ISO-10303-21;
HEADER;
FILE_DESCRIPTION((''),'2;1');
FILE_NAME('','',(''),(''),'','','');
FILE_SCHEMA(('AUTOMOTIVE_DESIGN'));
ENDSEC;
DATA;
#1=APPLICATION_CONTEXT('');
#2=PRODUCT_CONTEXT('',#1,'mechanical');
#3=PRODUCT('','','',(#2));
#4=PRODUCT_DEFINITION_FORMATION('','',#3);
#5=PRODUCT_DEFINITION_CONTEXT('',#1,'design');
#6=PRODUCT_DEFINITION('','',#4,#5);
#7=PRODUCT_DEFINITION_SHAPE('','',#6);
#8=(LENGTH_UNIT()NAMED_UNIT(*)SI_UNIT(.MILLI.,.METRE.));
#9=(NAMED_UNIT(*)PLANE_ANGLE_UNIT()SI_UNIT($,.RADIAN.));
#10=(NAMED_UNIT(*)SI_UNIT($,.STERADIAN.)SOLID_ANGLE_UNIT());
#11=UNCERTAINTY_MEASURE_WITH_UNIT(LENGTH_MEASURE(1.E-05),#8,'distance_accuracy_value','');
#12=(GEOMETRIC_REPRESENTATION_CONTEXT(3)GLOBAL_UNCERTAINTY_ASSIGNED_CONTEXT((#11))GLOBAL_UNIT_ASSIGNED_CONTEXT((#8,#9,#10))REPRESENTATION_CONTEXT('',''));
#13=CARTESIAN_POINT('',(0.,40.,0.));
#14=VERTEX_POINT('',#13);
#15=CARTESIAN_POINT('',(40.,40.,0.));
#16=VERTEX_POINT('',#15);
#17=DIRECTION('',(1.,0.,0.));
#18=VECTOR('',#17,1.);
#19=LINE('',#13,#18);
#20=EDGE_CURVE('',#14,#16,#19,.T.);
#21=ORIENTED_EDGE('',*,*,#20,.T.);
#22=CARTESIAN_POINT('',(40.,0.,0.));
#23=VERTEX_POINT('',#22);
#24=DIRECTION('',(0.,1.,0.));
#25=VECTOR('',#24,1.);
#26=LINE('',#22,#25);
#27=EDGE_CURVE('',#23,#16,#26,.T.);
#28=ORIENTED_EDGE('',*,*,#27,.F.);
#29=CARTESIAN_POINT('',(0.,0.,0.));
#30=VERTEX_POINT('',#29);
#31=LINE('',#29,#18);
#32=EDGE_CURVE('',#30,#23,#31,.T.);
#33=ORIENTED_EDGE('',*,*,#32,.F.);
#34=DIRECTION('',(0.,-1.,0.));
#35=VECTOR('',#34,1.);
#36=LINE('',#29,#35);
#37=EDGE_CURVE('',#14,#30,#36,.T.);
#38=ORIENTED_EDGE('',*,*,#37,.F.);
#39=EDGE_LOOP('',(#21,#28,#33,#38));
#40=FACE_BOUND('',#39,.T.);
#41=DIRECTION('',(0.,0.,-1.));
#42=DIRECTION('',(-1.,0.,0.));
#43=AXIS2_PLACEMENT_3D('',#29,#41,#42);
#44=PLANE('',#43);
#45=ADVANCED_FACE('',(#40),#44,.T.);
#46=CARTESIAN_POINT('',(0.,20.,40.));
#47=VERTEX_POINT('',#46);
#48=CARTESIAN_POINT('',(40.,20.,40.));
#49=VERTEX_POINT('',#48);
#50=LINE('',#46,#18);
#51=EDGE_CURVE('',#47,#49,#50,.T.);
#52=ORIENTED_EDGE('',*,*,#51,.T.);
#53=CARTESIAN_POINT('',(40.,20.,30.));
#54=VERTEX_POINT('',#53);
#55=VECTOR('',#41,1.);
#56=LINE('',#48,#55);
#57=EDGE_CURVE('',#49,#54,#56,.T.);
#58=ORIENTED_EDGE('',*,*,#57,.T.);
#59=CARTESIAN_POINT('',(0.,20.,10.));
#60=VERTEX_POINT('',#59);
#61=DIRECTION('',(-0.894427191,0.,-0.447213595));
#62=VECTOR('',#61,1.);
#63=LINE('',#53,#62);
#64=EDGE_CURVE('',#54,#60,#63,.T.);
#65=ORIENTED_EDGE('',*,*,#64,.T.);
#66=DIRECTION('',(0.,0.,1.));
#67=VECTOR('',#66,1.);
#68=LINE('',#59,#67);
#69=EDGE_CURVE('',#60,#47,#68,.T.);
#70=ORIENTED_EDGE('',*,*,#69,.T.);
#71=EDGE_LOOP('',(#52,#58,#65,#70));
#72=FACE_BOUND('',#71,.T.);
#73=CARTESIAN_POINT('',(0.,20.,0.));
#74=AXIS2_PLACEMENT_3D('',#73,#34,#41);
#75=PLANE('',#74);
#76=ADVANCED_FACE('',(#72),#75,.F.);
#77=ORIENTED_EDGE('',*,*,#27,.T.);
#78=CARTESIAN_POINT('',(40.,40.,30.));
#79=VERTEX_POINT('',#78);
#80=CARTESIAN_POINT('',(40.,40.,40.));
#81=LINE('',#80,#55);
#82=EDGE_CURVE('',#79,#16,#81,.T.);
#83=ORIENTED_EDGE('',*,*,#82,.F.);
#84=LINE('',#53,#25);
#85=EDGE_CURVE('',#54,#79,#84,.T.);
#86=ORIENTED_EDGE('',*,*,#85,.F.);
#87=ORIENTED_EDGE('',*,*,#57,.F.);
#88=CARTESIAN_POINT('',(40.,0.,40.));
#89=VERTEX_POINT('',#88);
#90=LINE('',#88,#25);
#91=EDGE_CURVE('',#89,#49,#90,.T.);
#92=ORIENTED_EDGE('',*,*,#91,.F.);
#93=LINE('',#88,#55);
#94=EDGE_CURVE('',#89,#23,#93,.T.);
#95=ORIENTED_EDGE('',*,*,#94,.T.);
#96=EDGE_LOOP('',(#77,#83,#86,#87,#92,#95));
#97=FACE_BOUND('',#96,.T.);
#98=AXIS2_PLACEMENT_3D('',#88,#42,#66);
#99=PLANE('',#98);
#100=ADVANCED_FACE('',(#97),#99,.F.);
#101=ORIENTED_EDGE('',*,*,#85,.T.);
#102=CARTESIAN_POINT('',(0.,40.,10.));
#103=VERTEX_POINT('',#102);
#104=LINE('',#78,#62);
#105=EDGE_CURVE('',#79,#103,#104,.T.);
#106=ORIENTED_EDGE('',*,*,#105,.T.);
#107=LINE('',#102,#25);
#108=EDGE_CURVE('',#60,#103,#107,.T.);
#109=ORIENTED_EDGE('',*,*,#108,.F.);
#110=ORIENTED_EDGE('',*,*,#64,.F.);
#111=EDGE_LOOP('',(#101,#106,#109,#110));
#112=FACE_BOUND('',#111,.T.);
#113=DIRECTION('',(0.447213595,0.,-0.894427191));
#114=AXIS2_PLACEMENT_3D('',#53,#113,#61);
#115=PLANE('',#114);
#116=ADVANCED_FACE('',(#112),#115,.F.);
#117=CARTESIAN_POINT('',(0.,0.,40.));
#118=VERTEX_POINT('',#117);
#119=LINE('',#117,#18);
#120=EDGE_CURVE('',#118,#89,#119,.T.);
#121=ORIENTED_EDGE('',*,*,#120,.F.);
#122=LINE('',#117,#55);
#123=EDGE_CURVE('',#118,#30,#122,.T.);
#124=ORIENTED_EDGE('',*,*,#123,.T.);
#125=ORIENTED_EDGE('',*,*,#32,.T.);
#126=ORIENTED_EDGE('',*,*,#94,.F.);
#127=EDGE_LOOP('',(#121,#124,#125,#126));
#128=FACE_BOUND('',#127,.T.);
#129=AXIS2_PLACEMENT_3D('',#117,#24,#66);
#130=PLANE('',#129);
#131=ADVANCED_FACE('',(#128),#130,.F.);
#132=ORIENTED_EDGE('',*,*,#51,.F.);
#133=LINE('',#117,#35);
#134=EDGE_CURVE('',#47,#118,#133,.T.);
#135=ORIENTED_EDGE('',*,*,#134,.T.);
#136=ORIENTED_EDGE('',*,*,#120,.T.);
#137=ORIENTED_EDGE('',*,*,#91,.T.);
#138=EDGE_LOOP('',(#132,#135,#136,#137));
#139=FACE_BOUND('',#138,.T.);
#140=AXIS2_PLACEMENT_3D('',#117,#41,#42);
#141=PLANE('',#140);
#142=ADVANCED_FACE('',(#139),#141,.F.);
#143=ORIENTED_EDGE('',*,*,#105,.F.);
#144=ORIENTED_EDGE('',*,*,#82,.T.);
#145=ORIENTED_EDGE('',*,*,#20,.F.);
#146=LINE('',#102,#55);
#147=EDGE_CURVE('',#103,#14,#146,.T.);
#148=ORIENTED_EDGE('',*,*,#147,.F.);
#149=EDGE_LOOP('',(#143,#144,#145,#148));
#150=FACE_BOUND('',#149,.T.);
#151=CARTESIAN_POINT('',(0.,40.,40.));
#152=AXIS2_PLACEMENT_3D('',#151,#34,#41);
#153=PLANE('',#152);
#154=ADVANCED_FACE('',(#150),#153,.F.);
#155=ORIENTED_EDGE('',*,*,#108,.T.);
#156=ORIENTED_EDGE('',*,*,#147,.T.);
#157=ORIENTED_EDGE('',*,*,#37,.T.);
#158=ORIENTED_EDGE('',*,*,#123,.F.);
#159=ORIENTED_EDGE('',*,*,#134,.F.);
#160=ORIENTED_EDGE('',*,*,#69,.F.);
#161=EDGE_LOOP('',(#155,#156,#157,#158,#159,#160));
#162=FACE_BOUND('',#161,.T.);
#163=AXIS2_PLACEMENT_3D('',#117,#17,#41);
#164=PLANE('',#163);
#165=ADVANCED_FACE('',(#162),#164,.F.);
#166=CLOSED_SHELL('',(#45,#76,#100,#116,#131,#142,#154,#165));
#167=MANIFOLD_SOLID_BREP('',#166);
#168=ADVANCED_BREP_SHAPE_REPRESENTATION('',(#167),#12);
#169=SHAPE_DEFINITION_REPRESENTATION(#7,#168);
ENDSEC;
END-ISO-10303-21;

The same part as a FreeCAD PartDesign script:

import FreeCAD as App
import Part
import Sketcher

V = App.Vector


def add_polygon(sketch, points):
    """Adds a closed chain of lines whose ends are joined by coincident constraints."""
    first, n = sketch.GeometryCount, len(points)
    for a, b in zip(points, points[1:] + points[:1]):
        sketch.addGeometry(Part.LineSegment(App.Vector(*a, 0), App.Vector(*b, 0)), False)
    for i in range(n):
        sketch.addConstraint(Sketcher.Constraint("Coincident", first + i, 2, first + (i + 1) % n, 1))

doc = App.newDocument("Part")
body = doc.addObject("PartDesign::Body", "Body")

# Sketch on XY plane
sketch1 = doc.addObject("Sketcher::SketchObject", "Sketch")
body.addObject(sketch1)
sketch1.AttachmentSupport = (doc.XY_Plane, [""])
sketch1.MapMode = "FlatFace"
add_polygon(sketch1, [(0, 40), (0, 0), (40, 0), (40, 40)])  # lines 0-3
sketch1.addConstraint([
    Sketcher.Constraint("Vertical", 0),
    Sketcher.Constraint("Horizontal", 1),
    Sketcher.Constraint("Vertical", 2),
    Sketcher.Constraint("Horizontal", 3),
    Sketcher.Constraint("Coincident", 0, 2, -1, 1),
    Sketcher.Constraint("Equal", 3, 0),
    Sketcher.Constraint("DistanceX", 1, 1, 1, 2, 40.0),
])
pad1 = doc.addObject("PartDesign::Pad", "Pad")
body.addObject(pad1)
pad1.Profile = sketch1
pad1.Length = 40

# Sketch on YZ plane
sketch2 = doc.addObject("Sketcher::SketchObject", "Sketch001")
body.addObject(sketch2)
sketch2.AttachmentSupport = (doc.YZ_Plane, [""])
sketch2.MapMode = "FlatFace"
add_polygon(sketch2, [(40, 0), (20, 0), (20, 10), (40, 10)])  # lines 0-3
sketch2.addConstraint([
    Sketcher.Constraint("Horizontal", 0),
    Sketcher.Constraint("Vertical", 1),
    Sketcher.Constraint("Horizontal", 2),
    Sketcher.Constraint("Vertical", 3),
    Sketcher.Constraint("PointOnObject", 0, 2, -1),
    Sketcher.Constraint("DistanceX", 0, 2, 0, 1, 20.0),
    Sketcher.Constraint("DistanceY", 1, 1, 1, 2, 10.0),
    Sketcher.Constraint("DistanceX", -1, 1, 0, 2, 20.0),
])
pocket1 = doc.addObject("PartDesign::Pocket", "Pocket")
body.addObject(pocket1)
pocket1.Profile = sketch2
pocket1.Length = 40
pocket1.Reversed = True

# Sketch on XZ plane
sketch3 = doc.addObject("Sketcher::SketchObject", "Sketch002")
body.addObject(sketch3)
sketch3.AttachmentSupport = (doc.XZ_Plane, [""])
sketch3.MapMode = "FlatFace"
sketch3.AttachmentOffset = App.Placement(V(0, 0, -40), App.Rotation())
add_polygon(sketch3, [(40, 30), (0, 10), (0, 40), (40, 40)])  # lines 0-3
sketch3.addConstraint([
    Sketcher.Constraint("Vertical", 1),
    Sketcher.Constraint("Horizontal", 2),
    Sketcher.Constraint("Vertical", 3),
    Sketcher.Constraint("PointOnObject", 0, 2, -2),
    Sketcher.Constraint("DistanceX", 2, 1, 2, 2, 40.0),
    Sketcher.Constraint("DistanceY", 1, 1, 1, 2, 30.0),
    Sketcher.Constraint("DistanceY", 3, 2, 3, 1, 10.0),
    Sketcher.Constraint("DistanceY", -1, 1, 0, 2, 10.0),
])
pocket2 = doc.addObject("PartDesign::Pocket", "Pocket001")
body.addObject(pocket2)
pocket2.Profile = sketch3
pocket2.Length = 20
pocket2.Reversed = True

# Sketch on XY plane
sketch4 = doc.addObject("Sketcher::SketchObject", "Sketch003")
body.addObject(sketch4)
sketch4.AttachmentSupport = (doc.XY_Plane, [""])
sketch4.MapMode = "FlatFace"
add_polygon(sketch4, [(40, 40), (40, 20), (0, 20), (0, 40)])  # lines 0-3
sketch4.addConstraint([
    Sketcher.Constraint("Vertical", 0),
    Sketcher.Constraint("Horizontal", 1),
    Sketcher.Constraint("Vertical", 2),
    Sketcher.Constraint("Horizontal", 3),
    Sketcher.Constraint("PointOnObject", 1, 2, -2),
    Sketcher.Constraint("DistanceX", 1, 2, 1, 1, 40.0),
    Sketcher.Constraint("DistanceY", 0, 2, 0, 1, 20.0),
    Sketcher.Constraint("DistanceY", -1, 1, 0, 2, 20.0),
])
pad2 = doc.addObject("PartDesign::Pad", "Pad001")
body.addObject(pad2)
pad2.Profile = sketch4
pad2.Length = 10

doc.recompute()
